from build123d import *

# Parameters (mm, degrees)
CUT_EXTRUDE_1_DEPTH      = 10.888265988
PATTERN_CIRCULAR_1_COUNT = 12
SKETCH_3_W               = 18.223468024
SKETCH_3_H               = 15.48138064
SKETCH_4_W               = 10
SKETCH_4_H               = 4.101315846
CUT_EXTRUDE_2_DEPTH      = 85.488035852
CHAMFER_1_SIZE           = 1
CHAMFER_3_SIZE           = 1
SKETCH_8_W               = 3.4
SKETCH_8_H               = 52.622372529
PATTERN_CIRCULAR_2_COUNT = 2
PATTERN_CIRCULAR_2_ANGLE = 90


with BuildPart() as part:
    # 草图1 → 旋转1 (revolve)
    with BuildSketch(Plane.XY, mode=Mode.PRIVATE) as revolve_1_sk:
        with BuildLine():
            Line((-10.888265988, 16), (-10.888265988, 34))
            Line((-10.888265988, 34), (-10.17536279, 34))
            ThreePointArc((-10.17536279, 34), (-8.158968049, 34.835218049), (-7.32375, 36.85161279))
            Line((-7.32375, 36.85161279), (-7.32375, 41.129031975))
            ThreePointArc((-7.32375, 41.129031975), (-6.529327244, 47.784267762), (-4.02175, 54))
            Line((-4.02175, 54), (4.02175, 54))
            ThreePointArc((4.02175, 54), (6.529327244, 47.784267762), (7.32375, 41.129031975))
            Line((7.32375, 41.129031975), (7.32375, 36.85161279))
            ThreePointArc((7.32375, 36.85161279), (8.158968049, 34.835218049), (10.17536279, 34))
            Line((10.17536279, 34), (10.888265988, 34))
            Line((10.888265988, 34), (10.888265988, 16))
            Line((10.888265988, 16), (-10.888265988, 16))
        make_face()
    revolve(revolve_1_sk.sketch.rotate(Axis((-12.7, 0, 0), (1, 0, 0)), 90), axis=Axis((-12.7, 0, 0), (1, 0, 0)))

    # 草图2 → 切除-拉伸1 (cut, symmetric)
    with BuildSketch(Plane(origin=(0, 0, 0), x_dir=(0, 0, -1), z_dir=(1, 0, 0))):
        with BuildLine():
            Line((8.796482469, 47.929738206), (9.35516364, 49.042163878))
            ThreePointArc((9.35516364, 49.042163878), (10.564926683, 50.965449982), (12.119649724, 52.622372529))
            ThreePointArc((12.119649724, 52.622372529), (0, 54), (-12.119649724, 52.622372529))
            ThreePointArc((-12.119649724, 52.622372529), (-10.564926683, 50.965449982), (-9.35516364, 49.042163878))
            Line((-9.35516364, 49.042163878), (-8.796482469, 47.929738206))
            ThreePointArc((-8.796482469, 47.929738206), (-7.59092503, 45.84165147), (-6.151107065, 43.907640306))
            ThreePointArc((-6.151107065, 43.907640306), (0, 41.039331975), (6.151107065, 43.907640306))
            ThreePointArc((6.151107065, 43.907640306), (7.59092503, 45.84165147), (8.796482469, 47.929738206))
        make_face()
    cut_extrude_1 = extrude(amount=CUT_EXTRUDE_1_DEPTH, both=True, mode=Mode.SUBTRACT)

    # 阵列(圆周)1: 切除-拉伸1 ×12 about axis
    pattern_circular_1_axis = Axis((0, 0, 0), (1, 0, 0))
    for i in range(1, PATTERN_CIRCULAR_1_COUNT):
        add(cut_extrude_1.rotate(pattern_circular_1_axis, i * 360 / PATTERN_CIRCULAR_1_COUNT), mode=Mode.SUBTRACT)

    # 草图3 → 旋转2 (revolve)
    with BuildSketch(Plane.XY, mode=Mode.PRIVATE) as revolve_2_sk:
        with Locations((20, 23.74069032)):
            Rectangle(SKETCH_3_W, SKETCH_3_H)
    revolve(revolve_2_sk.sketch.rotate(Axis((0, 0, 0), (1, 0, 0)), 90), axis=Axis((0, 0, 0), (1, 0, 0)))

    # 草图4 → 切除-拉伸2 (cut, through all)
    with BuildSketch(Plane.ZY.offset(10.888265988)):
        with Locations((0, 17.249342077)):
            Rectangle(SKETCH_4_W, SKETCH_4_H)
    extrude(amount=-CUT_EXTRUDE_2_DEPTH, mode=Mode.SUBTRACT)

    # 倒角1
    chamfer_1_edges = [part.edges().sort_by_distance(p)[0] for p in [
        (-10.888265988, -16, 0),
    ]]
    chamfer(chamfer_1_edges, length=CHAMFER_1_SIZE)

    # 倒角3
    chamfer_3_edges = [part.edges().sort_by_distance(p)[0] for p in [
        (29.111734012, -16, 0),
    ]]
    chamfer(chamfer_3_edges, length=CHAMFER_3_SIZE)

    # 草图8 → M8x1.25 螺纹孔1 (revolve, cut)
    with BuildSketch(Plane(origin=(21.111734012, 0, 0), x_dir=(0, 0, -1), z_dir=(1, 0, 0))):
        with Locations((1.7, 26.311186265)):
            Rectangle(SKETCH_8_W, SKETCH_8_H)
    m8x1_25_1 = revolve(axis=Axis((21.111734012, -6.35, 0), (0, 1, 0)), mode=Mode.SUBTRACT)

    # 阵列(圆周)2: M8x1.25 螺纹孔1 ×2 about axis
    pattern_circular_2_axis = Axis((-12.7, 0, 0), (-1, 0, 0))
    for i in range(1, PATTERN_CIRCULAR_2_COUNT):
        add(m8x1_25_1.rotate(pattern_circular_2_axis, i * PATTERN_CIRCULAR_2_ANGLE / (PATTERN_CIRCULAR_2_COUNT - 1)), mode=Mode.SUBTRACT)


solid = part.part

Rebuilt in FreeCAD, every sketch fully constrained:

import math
import FreeCAD as App
import Part
import Sketcher
from FreeCAD import Vector
Q = App.Units.Quantity


def edges_at(feature, points):
    """Names of the edges that pass closest to the given points."""
    edges = feature.Shape.Edges
    near = lambda p: min(range(len(edges)), key=lambda i: edges[i].distToShape(Part.Vertex(*p))[0])
    return sorted({f"Edge{near(p) + 1}" for p in points})


def add_polygon(sketch, points):
    """Adds a closed chain of lines whose ends are joined by coincident constraints."""
    first, n = sketch.GeometryCount, len(points)
    for a, b in zip(points, points[1:] + points[:1]):
        sketch.addGeometry(Part.LineSegment(App.Vector(*a, 0), App.Vector(*b, 0)), False)
    for i in range(n):
        sketch.addConstraint(Sketcher.Constraint("Coincident", first + i, 2, first + (i + 1) % n, 1))

doc = App.newDocument("Part")
body = doc.addObject("PartDesign::Body", "Body")

sketch1 = body.newObject("Sketcher::SketchObject", "Sketch")
sketch1.AttachmentSupport = (doc.getObject("XY_Plane"), [""])
sketch1.MapMode = "FlatFace"
sketch1.addGeometry([
    Part.LineSegment(Vector(-10.9, 34, 0), Vector(-10.9, 16, 0)),
    Part.LineSegment(Vector(-10.9, 16, 0), Vector(10.9, 16, 0)),
    Part.LineSegment(Vector(10.9, 16, 0), Vector(10.9, 34, 0)),
    Part.LineSegment(Vector(10.9, 34, 0), Vector(10.2, 34, 0)),
    Part.ArcOfCircle(Part.Circle(Vector(10.2, 36.9, 0), Vector(0, 0, 1), 2.9), math.radians(180), math.radians(270)),
    Part.LineSegment(Vector(7.3, 36.9, 0), Vector(7.3, 41.1, 0)),
    Part.ArcOfCircle(Part.Circle(Vector(-18.1, 41.5, 0), Vector(0, 0, 1), 25.4), math.radians(-1), math.radians(30)),
    Part.LineSegment(Vector(4, 54, 0), Vector(-4, 54, 0)),
    Part.ArcOfCircle(Part.Circle(Vector(18.1, 41.5, 0), Vector(0, 0, 1), 25.4), math.radians(150), math.radians(181)),
    Part.LineSegment(Vector(-7.3, 41.1, 0), Vector(-7.3, 36.9, 0)),
    Part.ArcOfCircle(Part.Circle(Vector(-10.2, 36.9, 0), Vector(0, 0, 1), 2.9), math.radians(-90), math.radians(0)),
    Part.LineSegment(Vector(-10.2, 34, 0), Vector(-10.9, 34, 0)),
], False)
sketch1.addConstraint([
    Sketcher.Constraint("Coincident", 0, 2, 1, 1),
    Sketcher.Constraint("Coincident", 1, 2, 2, 1),
    Sketcher.Constraint("Coincident", 2, 2, 3, 1),
    Sketcher.Constraint("Tangent", 3, 2, 4, 2),
    Sketcher.Constraint("Tangent", 4, 1, 5, 1),
    Sketcher.Constraint("Coincident", 5, 2, 6, 1),
    Sketcher.Constraint("Coincident", 6, 2, 7, 1),
    Sketcher.Constraint("Coincident", 7, 2, 8, 1),
    Sketcher.Constraint("Coincident", 8, 2, 9, 1),
    Sketcher.Constraint("Tangent", 9, 2, 10, 2),
    Sketcher.Constraint("Tangent", 10, 1, 11, 1),
    Sketcher.Constraint("Coincident", 11, 2, 0, 1),
    Sketcher.Constraint("Vertical", 0),
    Sketcher.Constraint("Horizontal", 1),
    Sketcher.Constraint("Vertical", 2),
    Sketcher.Constraint("Horizontal", 3),
    Sketcher.Constraint("Vertical", 5),
    Sketcher.Constraint("Horizontal", 7),
    Sketcher.Constraint("Vertical", 9),
    Sketcher.Constraint("Horizontal", 11),
    Sketcher.Constraint("Equal", 6, 8),
    Sketcher.Constraint("Equal", 4, 10),
    Sketcher.Constraint("Symmetric", 6, 3, 8, 3, -2),
    Sketcher.Constraint("Symmetric", 4, 3, 10, 3, -2),
    Sketcher.Constraint("Equal", 3, 11),
    Sketcher.Constraint("Radius", 6, Q("25.4 mm")),
    Sketcher.Constraint("DistanceY", 0, 2, 0, 1, Q("18 mm")),
    Sketcher.Constraint("DistanceY", -1, 1, 0, 2, Q("16 mm")),
    Sketcher.Constraint("DistanceY", -1, 1, 6, 2, Q("54 mm")),
    Sketcher.Constraint("DistanceX", 7, 2, 7, 1, Q("8.0435 mm")),
    Sketcher.Constraint("Radius", 4, Q("2.851613 mm")),
    Sketcher.Constraint("DistanceX", 6, 2, 5, 2, Q("3.302 mm")),
    Sketcher.Constraint("DistanceX", 1, 1, 1, 2, Q("21.776532 mm")),
    Sketcher.Constraint("DistanceY", 5, 1, 5, 2, Q("4.277419 mm")),
])
revolution = body.newObject("PartDesign::Revolution", "Revolution")
revolution.Profile = sketch1
revolution.ReferenceAxis = (sketch1, ["H_Axis"])
revolution.Angle = 360

sketch2 = body.newObject("Sketcher::SketchObject", "Sketch001")
sketch2.AttachmentSupport = (doc.getObject("YZ_Plane"), [""])
sketch2.MapMode = "FlatFace"
sketch2.addGeometry([
    Part.LineSegment(Vector(47.929738, -8.796482, 0), Vector(49.042164, -9.355164, 0)),
    Part.ArcOfCircle(Part.Circle(Vector(43.725972, -19.940573, 0), Vector(0, 0, 1), 11.84537), math.radians(41.319055), math.radians(63.333333)),
    Part.ArcOfCircle(Part.Circle(Vector(0, 0, 0), Vector(0, 0, 1), 54), math.radians(-12.96983), math.radians(12.96983)),
    Part.ArcOfCircle(Part.Circle(Vector(43.725972, 19.940573, 0), Vector(0, 0, 1), 11.84537), math.radians(-63.333333), math.radians(-41.319055)),
    Part.LineSegment(Vector(49.042164, 9.355164, 0), Vector(47.929738, 8.796482, 0)),
    Part.ArcOfCircle(Part.Circle(Vector(57.235006, -9.731829, 0), Vector(0, 0, 1), 20.7337), math.radians(116.666667), math.radians(130)),
    Part.ArcOfCircle(Part.Circle(Vector(49.069032, 0, 0), Vector(0, 0, 1), 8.0297), math.radians(130), math.radians(230)),
    Part.ArcOfCircle(Part.Circle(Vector(57.235006, 9.731829, 0), Vector(0, 0, 1), 20.7337), math.radians(-130), math.radians(-116.666667)),
], False)
sketch2.addConstraint([
    Sketcher.Constraint("Coincident", 0, 2, 1, 2),
    Sketcher.Constraint("Coincident", 1, 1, 2, 1),
    Sketcher.Constraint("Coincident", 2, 2, 3, 2),
    Sketcher.Constraint("Coincident", 3, 1, 4, 1),
    Sketcher.Constraint("Coincident", 4, 2, 5, 1),
    Sketcher.Constraint("Coincident", 5, 2, 6, 1),
    Sketcher.Constraint("Coincident", 6, 2, 7, 1),
    Sketcher.Constraint("Coincident", 7, 2, 0, 1),
    Sketcher.Constraint("Coincident", 2, 3, -1, 1),
    Sketcher.Constraint("PointOnObject", 6, 3, -1),
    Sketcher.Constraint("Radius", 2, Q("54 mm")),
    Sketcher.Constraint("Radius", 5, Q("20.7337 mm")),
    Sketcher.Constraint("Radius", 6, Q("8.0297 mm")),
    Sketcher.Constraint("Radius", 7, Q("20.7337 mm")),
    Sketcher.Constraint("Radius", 1, Q("11.84537 mm")),
    Sketcher.Constraint("Radius", 3, Q("11.84537 mm")),
    Sketcher.Constraint("DistanceY", 5, 3, 3, 3, Q("29.672401 mm")),
    Sketcher.Constraint("DistanceY", 1, 3, 7, 3, Q("29.672401 mm")),
    Sketcher.Constraint("DistanceX", 1, 3, 1, 1, Q("8.896401 mm")),
    Sketcher.Constraint("DistanceX", 3, 3, 2, 2, Q("8.896401 mm")),
    Sketcher.Constraint("DistanceX", -1, 1, 1, 3, Q("43.725972 mm")),
    Sketcher.Constraint("DistanceX", -1, 1, 3, 3, Q("43.725972 mm")),
    Sketcher.Constraint("DistanceX", -1, 1, 6, 3, Q("49.069032 mm")),
    Sketcher.Constraint("DistanceX", -1, 1, 4, 2, Q("47.929738 mm")),
    Sketcher.Constraint("DistanceX", -1, 1, 5, 2, Q("43.90764 mm")),
    Sketcher.Constraint("DistanceX", -1, 1, 6, 2, Q("43.90764 mm")),
    Sketcher.Constraint("DistanceX", -1, 1, 7, 2, Q("47.929738 mm")),
    Sketcher.Constraint("DistanceX", 0, 2, 5, 3, Q("8.192842 mm")),
    Sketcher.Constraint("DistanceX", 3, 1, 2, 2, Q("3.580209 mm")),
])
pocket1 = body.newObject("PartDesign::Pocket", "Pocket")
pocket1.Profile = sketch2
pocket1.Length = 21.776532
pocket1.Midplane = True
doc.recompute()

polarpattern = body.newObject("PartDesign::PolarPattern", "PolarPattern")
polarpattern.Originals = [pocket1]
polarpattern.Axis = (doc.getObject("X_Axis"), [""])
polarpattern.Angle = 360
polarpattern.Occurrences = 12
body.Tip = polarpattern

sketch3 = body.newObject("Sketcher::SketchObject", "Sketch002")
sketch3.AttachmentSupport = (doc.getObject("XY_Plane"), [""])
sketch3.MapMode = "FlatFace"
add_polygon(sketch3, [(11, 31), (11, 16), (29, 16), (29, 31)])
sketch3.addConstraint([
    Sketcher.Constraint("Vertical", 0),
    Sketcher.Constraint("Horizontal", 1),
    Sketcher.Constraint("Vertical", 2),
    Sketcher.Constraint("Horizontal", 3),
    Sketcher.Constraint("DistanceY", -1, 1, 0, 2, Q("16 mm")),
    Sketcher.Constraint("DistanceX", 1, 1, 1, 2, Q("18.223468 mm")),
    Sketcher.Constraint("DistanceY", 0, 2, 0, 1, Q("15.481381 mm")),
    Sketcher.Constraint("DistanceX", -1, 1, 0, 2, Q("10.888266 mm")),
])
revolution2 = body.newObject("PartDesign::Revolution", "Revolution001")
revolution2.Profile = sketch3
revolution2.ReferenceAxis = (sketch3, ["H_Axis"])
revolution2.Angle = 360

sketch4 = body.newObject("Sketcher::SketchObject", "Sketch003")
sketch4.AttachmentSupport = (doc.getObject("YZ_Plane"), [""])
sketch4.MapMode = "FlatFace"
sketch4.AttachmentOffset = App.Placement(Vector(0, 0, -10.888266), App.Rotation())
add_polygon(sketch4, [(19.3, -5), (15.2, -5), (15.2, 5), (19.3, 5)])
sketch4.addConstraint([
    Sketcher.Constraint("Horizontal", 0),
    Sketcher.Constraint("Vertical", 1),
    Sketcher.Constraint("Horizontal", 2),
    Sketcher.Constraint("Vertical", 3),
    Sketcher.Constraint("DistanceY", 1, 1, 1, 2, Q("10 mm")),
    Sketcher.Constraint("DistanceY", 0, 2, -1, 1, Q("5 mm")),
    Sketcher.Constraint("DistanceX", -1, 1, 2, 2, Q("19.3 mm")),
    Sketcher.Constraint("DistanceX", 0, 2, 0, 1, Q("4.101316 mm")),
])
pocket2 = body.newObject("PartDesign::Pocket", "Pocket001")
pocket2.Profile = sketch4
pocket2.Type = "ThroughAll"
pocket2.Reversed = True
doc.recompute()

chamfer = body.newObject("PartDesign::Chamfer", "Chamfer")
chamfer.Base = (pocket2, edges_at(pocket2, [(-10.888, -16, 0)]))
chamfer.Size = 1
doc.recompute()

chamfer2 = body.newObject("PartDesign::Chamfer", "Chamfer001")
chamfer2.Base = (chamfer, edges_at(chamfer, [(29.112, -16, 0)]))
chamfer2.Size = 1

sketch5 = body.newObject("Sketcher::SketchObject", "Sketch004")
sketch5.AttachmentSupport = (doc.getObject("YZ_Plane"), [""])
sketch5.MapMode = "FlatFace"
sketch5.AttachmentOffset = App.Placement(Vector(0, 0, 21.111734), App.Rotation())
add_polygon(sketch5, [(52.6, 0), (0, 0), (0, -3.4), (52.6, -3.4)])
sketch5.addConstraint([
    Sketcher.Constraint("Horizontal", 0),
    Sketcher.Constraint("Vertical", 1),
    Sketcher.Constraint("Horizontal", 2),
    Sketcher.Constraint("Vertical", 3),
    Sketcher.Constraint("Coincident", 0, 2, -1, 1),
    Sketcher.Constraint("DistanceY", 1, 2, 1, 1, Q("3.4 mm")),
    Sketcher.Constraint("DistanceX", 0, 2, 0, 1, Q("52.622373 mm")),
])
groove = body.newObject("PartDesign::Groove", "Groove")
groove.Profile = sketch5
groove.ReferenceAxis = (sketch5, ["H_Axis"])
groove.Angle = 360
doc.recompute()

polarpattern2 = body.newObject("PartDesign::PolarPattern", "PolarPattern001")
polarpattern2.Originals = [groove]
polarpattern2.Axis = (doc.getObject("X_Axis"), [""])
polarpattern2.Angle = 90
polarpattern2.Occurrences = 2
polarpattern2.Reversed = True
body.Tip = polarpattern2

doc.recompute()
